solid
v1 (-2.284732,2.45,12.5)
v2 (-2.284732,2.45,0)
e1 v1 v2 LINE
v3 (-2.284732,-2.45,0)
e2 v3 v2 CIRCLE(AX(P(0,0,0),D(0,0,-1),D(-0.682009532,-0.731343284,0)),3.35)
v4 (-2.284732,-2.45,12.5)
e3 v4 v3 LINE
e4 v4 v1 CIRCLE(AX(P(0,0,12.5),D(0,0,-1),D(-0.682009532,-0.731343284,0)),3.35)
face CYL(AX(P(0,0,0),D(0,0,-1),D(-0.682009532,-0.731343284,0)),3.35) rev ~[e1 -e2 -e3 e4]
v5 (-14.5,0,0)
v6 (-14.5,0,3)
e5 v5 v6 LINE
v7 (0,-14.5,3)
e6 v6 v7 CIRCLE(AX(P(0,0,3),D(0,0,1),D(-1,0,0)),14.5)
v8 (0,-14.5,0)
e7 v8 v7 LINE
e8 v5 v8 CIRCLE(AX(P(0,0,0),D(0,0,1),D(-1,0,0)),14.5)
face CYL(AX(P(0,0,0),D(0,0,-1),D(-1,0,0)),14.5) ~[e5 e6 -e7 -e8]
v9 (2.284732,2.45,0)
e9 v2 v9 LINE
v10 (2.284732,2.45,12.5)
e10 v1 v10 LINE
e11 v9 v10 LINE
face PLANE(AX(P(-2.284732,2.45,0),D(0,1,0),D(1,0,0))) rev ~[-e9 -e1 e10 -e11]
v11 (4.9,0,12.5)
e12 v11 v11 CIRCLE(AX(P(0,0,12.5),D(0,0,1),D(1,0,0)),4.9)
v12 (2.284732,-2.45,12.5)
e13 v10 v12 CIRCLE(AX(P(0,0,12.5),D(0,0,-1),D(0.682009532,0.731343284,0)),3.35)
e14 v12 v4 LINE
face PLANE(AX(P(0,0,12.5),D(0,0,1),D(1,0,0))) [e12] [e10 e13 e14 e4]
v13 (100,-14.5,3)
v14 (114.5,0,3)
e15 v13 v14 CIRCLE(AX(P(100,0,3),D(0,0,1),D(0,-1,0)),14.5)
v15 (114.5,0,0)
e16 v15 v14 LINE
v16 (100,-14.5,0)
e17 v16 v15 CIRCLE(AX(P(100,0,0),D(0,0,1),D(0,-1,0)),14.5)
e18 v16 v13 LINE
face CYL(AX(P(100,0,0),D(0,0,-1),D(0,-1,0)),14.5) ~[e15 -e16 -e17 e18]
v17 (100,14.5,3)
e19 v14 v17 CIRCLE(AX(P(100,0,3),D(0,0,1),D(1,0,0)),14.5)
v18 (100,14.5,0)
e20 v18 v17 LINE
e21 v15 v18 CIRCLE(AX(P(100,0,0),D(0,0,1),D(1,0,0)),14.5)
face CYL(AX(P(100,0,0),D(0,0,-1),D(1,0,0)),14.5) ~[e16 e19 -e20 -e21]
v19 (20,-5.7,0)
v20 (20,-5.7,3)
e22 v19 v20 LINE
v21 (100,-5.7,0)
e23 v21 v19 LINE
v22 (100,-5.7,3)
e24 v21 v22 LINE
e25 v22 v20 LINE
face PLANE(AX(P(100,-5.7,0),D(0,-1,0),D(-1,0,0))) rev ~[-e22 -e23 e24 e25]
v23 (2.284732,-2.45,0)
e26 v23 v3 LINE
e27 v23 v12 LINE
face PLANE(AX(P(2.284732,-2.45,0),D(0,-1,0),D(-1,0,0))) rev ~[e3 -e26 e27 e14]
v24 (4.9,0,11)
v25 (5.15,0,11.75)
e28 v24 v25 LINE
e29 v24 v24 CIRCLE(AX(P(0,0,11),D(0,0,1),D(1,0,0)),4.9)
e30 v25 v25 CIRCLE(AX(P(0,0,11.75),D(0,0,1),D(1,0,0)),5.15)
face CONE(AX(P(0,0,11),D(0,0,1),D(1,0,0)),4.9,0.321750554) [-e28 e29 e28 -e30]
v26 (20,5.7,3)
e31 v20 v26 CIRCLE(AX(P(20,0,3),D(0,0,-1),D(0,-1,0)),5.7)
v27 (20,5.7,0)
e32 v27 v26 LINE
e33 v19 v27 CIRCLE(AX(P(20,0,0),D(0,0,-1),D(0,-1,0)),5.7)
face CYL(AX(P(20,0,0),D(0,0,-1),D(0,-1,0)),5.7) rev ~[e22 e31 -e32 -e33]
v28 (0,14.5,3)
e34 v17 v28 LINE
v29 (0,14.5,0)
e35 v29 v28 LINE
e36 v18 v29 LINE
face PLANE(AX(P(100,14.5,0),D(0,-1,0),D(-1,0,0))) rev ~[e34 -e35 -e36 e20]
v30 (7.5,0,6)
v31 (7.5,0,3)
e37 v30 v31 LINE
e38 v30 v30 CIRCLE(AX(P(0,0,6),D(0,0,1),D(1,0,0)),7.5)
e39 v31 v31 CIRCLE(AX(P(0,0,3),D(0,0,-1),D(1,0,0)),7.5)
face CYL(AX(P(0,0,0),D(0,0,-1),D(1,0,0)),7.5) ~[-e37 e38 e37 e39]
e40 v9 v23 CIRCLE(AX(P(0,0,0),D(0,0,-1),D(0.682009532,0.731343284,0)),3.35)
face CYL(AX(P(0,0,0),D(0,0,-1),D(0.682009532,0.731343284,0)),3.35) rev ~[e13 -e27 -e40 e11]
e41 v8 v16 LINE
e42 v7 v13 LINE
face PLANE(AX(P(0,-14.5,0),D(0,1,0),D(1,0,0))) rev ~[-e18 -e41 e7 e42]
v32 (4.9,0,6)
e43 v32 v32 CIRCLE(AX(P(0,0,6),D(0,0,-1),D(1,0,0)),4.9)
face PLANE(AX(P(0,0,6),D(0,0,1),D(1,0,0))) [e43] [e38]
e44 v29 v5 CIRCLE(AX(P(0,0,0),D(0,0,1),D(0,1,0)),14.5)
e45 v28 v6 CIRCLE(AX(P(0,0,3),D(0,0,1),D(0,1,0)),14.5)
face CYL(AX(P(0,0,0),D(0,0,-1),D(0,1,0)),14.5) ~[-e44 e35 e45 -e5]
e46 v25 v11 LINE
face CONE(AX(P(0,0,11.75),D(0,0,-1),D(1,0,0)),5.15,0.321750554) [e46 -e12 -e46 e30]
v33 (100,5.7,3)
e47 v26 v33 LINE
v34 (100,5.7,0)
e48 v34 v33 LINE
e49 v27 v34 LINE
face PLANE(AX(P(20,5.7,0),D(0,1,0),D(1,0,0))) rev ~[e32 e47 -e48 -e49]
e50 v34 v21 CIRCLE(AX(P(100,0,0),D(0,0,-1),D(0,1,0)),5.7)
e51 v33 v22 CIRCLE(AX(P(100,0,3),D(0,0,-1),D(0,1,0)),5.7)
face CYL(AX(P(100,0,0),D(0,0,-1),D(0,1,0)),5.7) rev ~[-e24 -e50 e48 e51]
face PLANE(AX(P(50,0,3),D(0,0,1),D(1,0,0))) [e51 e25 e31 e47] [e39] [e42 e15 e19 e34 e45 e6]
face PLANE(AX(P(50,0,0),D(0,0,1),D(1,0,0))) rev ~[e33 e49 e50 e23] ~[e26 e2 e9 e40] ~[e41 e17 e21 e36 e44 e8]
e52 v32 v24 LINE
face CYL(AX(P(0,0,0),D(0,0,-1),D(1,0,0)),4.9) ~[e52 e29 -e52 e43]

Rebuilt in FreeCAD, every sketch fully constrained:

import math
import FreeCAD as App
import Part
import Sketcher
from FreeCAD import Vector

doc = App.newDocument("Part")
body = doc.addObject("PartDesign::Body", "Body")

# Sketch on XY plane
sketch1 = body.newObject("Sketcher::SketchObject", "Sketch")
sketch1.AttachmentSupport = (doc.getObject("XY_Plane"), [""])
sketch1.MapMode = "FlatFace"
sketch1.addGeometry([
    Part.LineSegment(Vector(100, 14.5, 0), Vector(0, 14.5, 0)),  # 0
    Part.ArcOfCircle(Part.Circle(Vector(0, 0, 0), Vector(0, 0, 1), 14.5), math.radians(90), math.radians(180)),  # 1
    Part.ArcOfCircle(Part.Circle(Vector(0, 0, 0), Vector(0, 0, 1), 14.5), math.radians(180), math.radians(270)),  # 2
    Part.LineSegment(Vector(0, -14.5, 0), Vector(100, -14.5, 0)),  # 3
    Part.ArcOfCircle(Part.Circle(Vector(100, 0, 0), Vector(0, 0, 1), 14.5), math.radians(-90), math.radians(0)),  # 4
    Part.ArcOfCircle(Part.Circle(Vector(100, 0, 0), Vector(0, 0, 1), 14.5), math.radians(0), math.radians(90)),  # 5
    Part.Circle(Vector(0, 0, 0), Vector(0, 0, 1), 5.5),  # 6
    Part.LineSegment(Vector(100, -5.7, 0), Vector(20, -5.7, 0)),  # 7
    Part.ArcOfCircle(Part.Circle(Vector(20, 0, 0), Vector(0, 0, 1), 5.7), math.radians(90), math.radians(270)),  # 8
    Part.LineSegment(Vector(20, 5.7, 0), Vector(100, 5.7, 0)),  # 9
    Part.ArcOfCircle(Part.Circle(Vector(100, 0, 0), Vector(0, 0, 1), 5.7), math.radians(-90), math.radians(90)),  # 10
], False)
sketch1.addConstraint([
    Sketcher.Constraint("Tangent", 0, 2, 1, 1),
    Sketcher.Constraint("Tangent", 1, 2, 2, 1),
    Sketcher.Constraint("Tangent", 2, 2, 3, 1),
    Sketcher.Constraint("Tangent", 3, 2, 4, 1),
    Sketcher.Constraint("Tangent", 4, 2, 5, 1),
    Sketcher.Constraint("Tangent", 5, 2, 0, 1),
    Sketcher.Constraint("Tangent", 7, 2, 8, 2),
    Sketcher.Constraint("Tangent", 8, 1, 9, 1),
    Sketcher.Constraint("Tangent", 9, 2, 10, 2),
    Sketcher.Constraint("Tangent", 10, 1, 7, 1),
    Sketcher.Constraint("Horizontal", 0),
    Sketcher.Constraint("Horizontal", 3),
    Sketcher.Constraint("Horizontal", 7),
    Sketcher.Constraint("Horizontal", 9),
    Sketcher.Constraint("Coincident", 1, 3, -1, 1),
    Sketcher.Constraint("Coincident", 6, 3, -1, 1),
    Sketcher.Constraint("Coincident", 10, 3, 4, 3),
    Sketcher.Constraint("Equal", 1, 2),
    Sketcher.Constraint("Equal", 2, 4),
    Sketcher.Constraint("PointOnObject", 1, 2, -1),
    Sketcher.Constraint("PointOnObject", 4, 2, -1),
    Sketcher.Constraint("Diameter", 6, 11.0),
    Sketcher.Constraint("Radius", 1, 14.5),
    Sketcher.Constraint("Radius", 8, 5.7),
    Sketcher.Constraint("DistanceX", 0, 2, 0, 1, 100.0),
    Sketcher.Constraint("DistanceX", 7, 2, 7, 1, 80.0),
])
pad1 = body.newObject("PartDesign::Pad", "Pad")
pad1.Profile = sketch1
pad1.Length = 3

# Sketch on XY plane
sketch2 = body.newObject("Sketcher::SketchObject", "Sketch001")
sketch2.AttachmentSupport = (doc.getObject("XY_Plane"), [""])
sketch2.MapMode = "FlatFace"
sketch2.addGeometry([
    Part.Circle(Vector(0, 0, 0), Vector(0, 0, 1), 7.5),
    Part.Circle(Vector(0, 0, 0), Vector(0, 0, 1), 5.5),
], False)
sketch2.addConstraint([
    Sketcher.Constraint("Coincident", 0, 3, -1, 1),
    Sketcher.Constraint("Coincident", 1, 3, -1, 1),
    Sketcher.Constraint("Diameter", 0, 15.0),
    Sketcher.Constraint("Diameter", 1, 11.0),
])
pad2 = body.newObject("PartDesign::Pad", "Pad001")
pad2.Profile = sketch2
pad2.Length = 5
body2 = doc.addObject("PartDesign::Body", "Body001")

# Sketch on XY plane
sketch3 = body2.newObject("Sketcher::SketchObject", "Sketch002")
sketch3.AttachmentSupport = (doc.getObject("XY_Plane001"), [""])
sketch3.MapMode = "FlatFace"
sketch3.addGeometry([
    Part.Circle(Vector(0, 0, 0), Vector(0, 0, 1), 9.5),  # 0
    Part.LineSegment(Vector(2.284732, -2.45, 0), Vector(-2.284732, -2.45, 0)),  # 1
    Part.ArcOfCircle(Part.Circle(Vector(0, 0, 0), Vector(0, 0, 1), 3.35), math.radians(133.000875), math.radians(226.999125)),  # 2
    Part.LineSegment(Vector(-2.284732, 2.45, 0), Vector(2.284732, 2.45, 0)),  # 3
    Part.ArcOfCircle(Part.Circle(Vector(0, 0, 0), Vector(0, 0, 1), 3.35), math.radians(-46.999125), math.radians(46.999125)),  # 4
], False)
sketch3.addConstraint([
    Sketcher.Constraint("Coincident", 1, 2, 2, 2),
    Sketcher.Constraint("Coincident", 2, 1, 3, 1),
    Sketcher.Constraint("Coincident", 3, 2, 4, 2),
    Sketcher.Constraint("Coincident", 4, 1, 1, 1),
    Sketcher.Constraint("Horizontal", 1),
    Sketcher.Constraint("Horizontal", 3),
    Sketcher.Constraint("Coincident", 0, 3, -1, 1),
    Sketcher.Constraint("Coincident", 2, 3, -1, 1),
    Sketcher.Constraint("Coincident", 4, 3, -1, 1),
    Sketcher.Constraint("Equal", 2, 4),
    Sketcher.Constraint("Vertical", 1, 2, 2, 1),
    Sketcher.Constraint("Diameter", 0, 19.0),
    Sketcher.Constraint("Radius", 2, 3.35),
    Sketcher.Constraint("DistanceY", 1, 2, 2, 1, 4.9),
])
pad3 = body2.newObject("PartDesign::Pad", "Pad002")
pad3.Profile = sketch3
pad3.Length = 3
doc.recompute()

boolean = body.newObject("PartDesign::Boolean", "Boolean")
boolean.Type = "Fuse"
boolean.addObjects([body2])

# Sketch on XY plane
sketch4 = body.newObject("Sketcher::SketchObject", "Sketch003")
sketch4.AttachmentSupport = (doc.getObject("XY_Plane"), [""])
sketch4.MapMode = "FlatFace"
sketch4.addGeometry([
    Part.Circle(Vector(0, 0, 0), Vector(0, 0, 1), 7.5),  # 0
    Part.LineSegment(Vector(2.284732, -2.45, 0), Vector(-2.284732, -2.45, 0)),  # 1
    Part.ArcOfCircle(Part.Circle(Vector(0, 0, 0), Vector(0, 0, 1), 3.35), math.radians(133.000875), math.radians(226.999125)),  # 2
    Part.LineSegment(Vector(-2.284732, 2.45, 0), Vector(2.284732, 2.45, 0)),  # 3
    Part.ArcOfCircle(Part.Circle(Vector(0, 0, 0), Vector(0, 0, 1), 3.35), math.radians(-46.999125), math.radians(46.999125)),  # 4
], False)
sketch4.addConstraint([
    Sketcher.Constraint("Coincident", 1, 2, 2, 2),
    Sketcher.Constraint("Coincident", 2, 1, 3, 1),
    Sketcher.Constraint("Coincident", 3, 2, 4, 2),
    Sketcher.Constraint("Coincident", 4, 1, 1, 1),
    Sketcher.Constraint("Horizontal", 1),
    Sketcher.Constraint("Horizontal", 3),
    Sketcher.Constraint("Coincident", 0, 3, -1, 1),
    Sketcher.Constraint("Coincident", 2, 3, -1, 1),
    Sketcher.Constraint("Coincident", 4, 3, -1, 1),
    Sketcher.Constraint("Equal", 2, 4),
    Sketcher.Constraint("Vertical", 1, 2, 2, 1),
    Sketcher.Constraint("Diameter", 0, 15.0),
    Sketcher.Constraint("Radius", 2, 3.35),
    Sketcher.Constraint("DistanceY", 1, 2, 2, 1, 4.9),
])
pad4 = body.newObject("PartDesign::Pad", "Pad003")
pad4.Profile = sketch4
pad4.Length = 6

# Sketch on XY plane
sketch5 = body.newObject("Sketcher::SketchObject", "Sketch004")
sketch5.AttachmentSupport = (doc.getObject("XY_Plane"), [""])
sketch5.MapMode = "FlatFace"
sketch5.addGeometry([
    Part.Circle(Vector(0, 0, 0), Vector(0, 0, 1), 4.9),  # 0
    Part.LineSegment(Vector(2.284732, -2.45, 0), Vector(-2.284732, -2.45, 0)),  # 1
    Part.ArcOfCircle(Part.Circle(Vector(0, 0, 0), Vector(0, 0, 1), 3.35), math.radians(133.000875), math.radians(226.999125)),  # 2
    Part.LineSegment(Vector(-2.284732, 2.45, 0), Vector(2.284732, 2.45, 0)),  # 3
    Part.ArcOfCircle(Part.Circle(Vector(0, 0, 0), Vector(0, 0, 1), 3.35), math.radians(-46.999125), math.radians(46.999125)),  # 4
], False)
sketch5.addConstraint([
    Sketcher.Constraint("Coincident", 1, 2, 2, 2),
    Sketcher.Constraint("Coincident", 2, 1, 3, 1),
    Sketcher.Constraint("Coincident", 3, 2, 4, 2),
    Sketcher.Constraint("Coincident", 4, 1, 1, 1),
    Sketcher.Constraint("Horizontal", 1),
    Sketcher.Constraint("Horizontal", 3),
    Sketcher.Constraint("Coincident", 0, 3, -1, 1),
    Sketcher.Constraint("Coincident", 2, 3, -1, 1),
    Sketcher.Constraint("Coincident", 4, 3, -1, 1),
    Sketcher.Constraint("Equal", 2, 4),
    Sketcher.Constraint("Vertical", 1, 2, 2, 1),
    Sketcher.Constraint("Diameter", 0, 9.8),
    Sketcher.Constraint("Radius", 2, 3.35),
    Sketcher.Constraint("DistanceY", 1, 2, 2, 1, 4.9),
])
pad5 = body.newObject("PartDesign::Pad", "Pad004")
pad5.Profile = sketch5
pad5.Length = 12.5

# Sketch on XZ plane
sketch6 = body.newObject("Sketcher::SketchObject", "Sketch005")
sketch6.AttachmentSupport = (doc.getObject("XZ_Plane"), [""])
sketch6.MapMode = "FlatFace"
sketch6.addGeometry([
    Part.LineSegment(Vector(5.15, 11.75, 0), Vector(4.9, 12.5, 0)),
    Part.LineSegment(Vector(4.9, 12.5, 0), Vector(4.9, 11, 0)),
    Part.LineSegment(Vector(4.9, 11, 0), Vector(5.15, 11.75, 0)),
], False)
sketch6.addConstraint([
    Sketcher.Constraint("Coincident", 0, 2, 1, 1),
    Sketcher.Constraint("Coincident", 1, 2, 2, 1),
    Sketcher.Constraint("Coincident", 2, 2, 0, 1),
    Sketcher.Constraint("Vertical", 1),
    Sketcher.Constraint("Equal", 0, 2),
    Sketcher.Constraint("DistanceY", 1, 2, 1, 1, 1.5),
    Sketcher.Constraint("DistanceY", -1, 1, 1, 2, 11.0),
    Sketcher.Constraint("DistanceX", -1, 1, 0, 2, 4.9),
    Sketcher.Constraint("DistanceX", -1, 1, 2, 2, 5.15),
])
revolution = body.newObject("PartDesign::Revolution", "Revolution")
revolution.Profile = sketch6
revolution.ReferenceAxis = (sketch6, ["V_Axis"])
revolution.Angle = 360

doc.recompute()
